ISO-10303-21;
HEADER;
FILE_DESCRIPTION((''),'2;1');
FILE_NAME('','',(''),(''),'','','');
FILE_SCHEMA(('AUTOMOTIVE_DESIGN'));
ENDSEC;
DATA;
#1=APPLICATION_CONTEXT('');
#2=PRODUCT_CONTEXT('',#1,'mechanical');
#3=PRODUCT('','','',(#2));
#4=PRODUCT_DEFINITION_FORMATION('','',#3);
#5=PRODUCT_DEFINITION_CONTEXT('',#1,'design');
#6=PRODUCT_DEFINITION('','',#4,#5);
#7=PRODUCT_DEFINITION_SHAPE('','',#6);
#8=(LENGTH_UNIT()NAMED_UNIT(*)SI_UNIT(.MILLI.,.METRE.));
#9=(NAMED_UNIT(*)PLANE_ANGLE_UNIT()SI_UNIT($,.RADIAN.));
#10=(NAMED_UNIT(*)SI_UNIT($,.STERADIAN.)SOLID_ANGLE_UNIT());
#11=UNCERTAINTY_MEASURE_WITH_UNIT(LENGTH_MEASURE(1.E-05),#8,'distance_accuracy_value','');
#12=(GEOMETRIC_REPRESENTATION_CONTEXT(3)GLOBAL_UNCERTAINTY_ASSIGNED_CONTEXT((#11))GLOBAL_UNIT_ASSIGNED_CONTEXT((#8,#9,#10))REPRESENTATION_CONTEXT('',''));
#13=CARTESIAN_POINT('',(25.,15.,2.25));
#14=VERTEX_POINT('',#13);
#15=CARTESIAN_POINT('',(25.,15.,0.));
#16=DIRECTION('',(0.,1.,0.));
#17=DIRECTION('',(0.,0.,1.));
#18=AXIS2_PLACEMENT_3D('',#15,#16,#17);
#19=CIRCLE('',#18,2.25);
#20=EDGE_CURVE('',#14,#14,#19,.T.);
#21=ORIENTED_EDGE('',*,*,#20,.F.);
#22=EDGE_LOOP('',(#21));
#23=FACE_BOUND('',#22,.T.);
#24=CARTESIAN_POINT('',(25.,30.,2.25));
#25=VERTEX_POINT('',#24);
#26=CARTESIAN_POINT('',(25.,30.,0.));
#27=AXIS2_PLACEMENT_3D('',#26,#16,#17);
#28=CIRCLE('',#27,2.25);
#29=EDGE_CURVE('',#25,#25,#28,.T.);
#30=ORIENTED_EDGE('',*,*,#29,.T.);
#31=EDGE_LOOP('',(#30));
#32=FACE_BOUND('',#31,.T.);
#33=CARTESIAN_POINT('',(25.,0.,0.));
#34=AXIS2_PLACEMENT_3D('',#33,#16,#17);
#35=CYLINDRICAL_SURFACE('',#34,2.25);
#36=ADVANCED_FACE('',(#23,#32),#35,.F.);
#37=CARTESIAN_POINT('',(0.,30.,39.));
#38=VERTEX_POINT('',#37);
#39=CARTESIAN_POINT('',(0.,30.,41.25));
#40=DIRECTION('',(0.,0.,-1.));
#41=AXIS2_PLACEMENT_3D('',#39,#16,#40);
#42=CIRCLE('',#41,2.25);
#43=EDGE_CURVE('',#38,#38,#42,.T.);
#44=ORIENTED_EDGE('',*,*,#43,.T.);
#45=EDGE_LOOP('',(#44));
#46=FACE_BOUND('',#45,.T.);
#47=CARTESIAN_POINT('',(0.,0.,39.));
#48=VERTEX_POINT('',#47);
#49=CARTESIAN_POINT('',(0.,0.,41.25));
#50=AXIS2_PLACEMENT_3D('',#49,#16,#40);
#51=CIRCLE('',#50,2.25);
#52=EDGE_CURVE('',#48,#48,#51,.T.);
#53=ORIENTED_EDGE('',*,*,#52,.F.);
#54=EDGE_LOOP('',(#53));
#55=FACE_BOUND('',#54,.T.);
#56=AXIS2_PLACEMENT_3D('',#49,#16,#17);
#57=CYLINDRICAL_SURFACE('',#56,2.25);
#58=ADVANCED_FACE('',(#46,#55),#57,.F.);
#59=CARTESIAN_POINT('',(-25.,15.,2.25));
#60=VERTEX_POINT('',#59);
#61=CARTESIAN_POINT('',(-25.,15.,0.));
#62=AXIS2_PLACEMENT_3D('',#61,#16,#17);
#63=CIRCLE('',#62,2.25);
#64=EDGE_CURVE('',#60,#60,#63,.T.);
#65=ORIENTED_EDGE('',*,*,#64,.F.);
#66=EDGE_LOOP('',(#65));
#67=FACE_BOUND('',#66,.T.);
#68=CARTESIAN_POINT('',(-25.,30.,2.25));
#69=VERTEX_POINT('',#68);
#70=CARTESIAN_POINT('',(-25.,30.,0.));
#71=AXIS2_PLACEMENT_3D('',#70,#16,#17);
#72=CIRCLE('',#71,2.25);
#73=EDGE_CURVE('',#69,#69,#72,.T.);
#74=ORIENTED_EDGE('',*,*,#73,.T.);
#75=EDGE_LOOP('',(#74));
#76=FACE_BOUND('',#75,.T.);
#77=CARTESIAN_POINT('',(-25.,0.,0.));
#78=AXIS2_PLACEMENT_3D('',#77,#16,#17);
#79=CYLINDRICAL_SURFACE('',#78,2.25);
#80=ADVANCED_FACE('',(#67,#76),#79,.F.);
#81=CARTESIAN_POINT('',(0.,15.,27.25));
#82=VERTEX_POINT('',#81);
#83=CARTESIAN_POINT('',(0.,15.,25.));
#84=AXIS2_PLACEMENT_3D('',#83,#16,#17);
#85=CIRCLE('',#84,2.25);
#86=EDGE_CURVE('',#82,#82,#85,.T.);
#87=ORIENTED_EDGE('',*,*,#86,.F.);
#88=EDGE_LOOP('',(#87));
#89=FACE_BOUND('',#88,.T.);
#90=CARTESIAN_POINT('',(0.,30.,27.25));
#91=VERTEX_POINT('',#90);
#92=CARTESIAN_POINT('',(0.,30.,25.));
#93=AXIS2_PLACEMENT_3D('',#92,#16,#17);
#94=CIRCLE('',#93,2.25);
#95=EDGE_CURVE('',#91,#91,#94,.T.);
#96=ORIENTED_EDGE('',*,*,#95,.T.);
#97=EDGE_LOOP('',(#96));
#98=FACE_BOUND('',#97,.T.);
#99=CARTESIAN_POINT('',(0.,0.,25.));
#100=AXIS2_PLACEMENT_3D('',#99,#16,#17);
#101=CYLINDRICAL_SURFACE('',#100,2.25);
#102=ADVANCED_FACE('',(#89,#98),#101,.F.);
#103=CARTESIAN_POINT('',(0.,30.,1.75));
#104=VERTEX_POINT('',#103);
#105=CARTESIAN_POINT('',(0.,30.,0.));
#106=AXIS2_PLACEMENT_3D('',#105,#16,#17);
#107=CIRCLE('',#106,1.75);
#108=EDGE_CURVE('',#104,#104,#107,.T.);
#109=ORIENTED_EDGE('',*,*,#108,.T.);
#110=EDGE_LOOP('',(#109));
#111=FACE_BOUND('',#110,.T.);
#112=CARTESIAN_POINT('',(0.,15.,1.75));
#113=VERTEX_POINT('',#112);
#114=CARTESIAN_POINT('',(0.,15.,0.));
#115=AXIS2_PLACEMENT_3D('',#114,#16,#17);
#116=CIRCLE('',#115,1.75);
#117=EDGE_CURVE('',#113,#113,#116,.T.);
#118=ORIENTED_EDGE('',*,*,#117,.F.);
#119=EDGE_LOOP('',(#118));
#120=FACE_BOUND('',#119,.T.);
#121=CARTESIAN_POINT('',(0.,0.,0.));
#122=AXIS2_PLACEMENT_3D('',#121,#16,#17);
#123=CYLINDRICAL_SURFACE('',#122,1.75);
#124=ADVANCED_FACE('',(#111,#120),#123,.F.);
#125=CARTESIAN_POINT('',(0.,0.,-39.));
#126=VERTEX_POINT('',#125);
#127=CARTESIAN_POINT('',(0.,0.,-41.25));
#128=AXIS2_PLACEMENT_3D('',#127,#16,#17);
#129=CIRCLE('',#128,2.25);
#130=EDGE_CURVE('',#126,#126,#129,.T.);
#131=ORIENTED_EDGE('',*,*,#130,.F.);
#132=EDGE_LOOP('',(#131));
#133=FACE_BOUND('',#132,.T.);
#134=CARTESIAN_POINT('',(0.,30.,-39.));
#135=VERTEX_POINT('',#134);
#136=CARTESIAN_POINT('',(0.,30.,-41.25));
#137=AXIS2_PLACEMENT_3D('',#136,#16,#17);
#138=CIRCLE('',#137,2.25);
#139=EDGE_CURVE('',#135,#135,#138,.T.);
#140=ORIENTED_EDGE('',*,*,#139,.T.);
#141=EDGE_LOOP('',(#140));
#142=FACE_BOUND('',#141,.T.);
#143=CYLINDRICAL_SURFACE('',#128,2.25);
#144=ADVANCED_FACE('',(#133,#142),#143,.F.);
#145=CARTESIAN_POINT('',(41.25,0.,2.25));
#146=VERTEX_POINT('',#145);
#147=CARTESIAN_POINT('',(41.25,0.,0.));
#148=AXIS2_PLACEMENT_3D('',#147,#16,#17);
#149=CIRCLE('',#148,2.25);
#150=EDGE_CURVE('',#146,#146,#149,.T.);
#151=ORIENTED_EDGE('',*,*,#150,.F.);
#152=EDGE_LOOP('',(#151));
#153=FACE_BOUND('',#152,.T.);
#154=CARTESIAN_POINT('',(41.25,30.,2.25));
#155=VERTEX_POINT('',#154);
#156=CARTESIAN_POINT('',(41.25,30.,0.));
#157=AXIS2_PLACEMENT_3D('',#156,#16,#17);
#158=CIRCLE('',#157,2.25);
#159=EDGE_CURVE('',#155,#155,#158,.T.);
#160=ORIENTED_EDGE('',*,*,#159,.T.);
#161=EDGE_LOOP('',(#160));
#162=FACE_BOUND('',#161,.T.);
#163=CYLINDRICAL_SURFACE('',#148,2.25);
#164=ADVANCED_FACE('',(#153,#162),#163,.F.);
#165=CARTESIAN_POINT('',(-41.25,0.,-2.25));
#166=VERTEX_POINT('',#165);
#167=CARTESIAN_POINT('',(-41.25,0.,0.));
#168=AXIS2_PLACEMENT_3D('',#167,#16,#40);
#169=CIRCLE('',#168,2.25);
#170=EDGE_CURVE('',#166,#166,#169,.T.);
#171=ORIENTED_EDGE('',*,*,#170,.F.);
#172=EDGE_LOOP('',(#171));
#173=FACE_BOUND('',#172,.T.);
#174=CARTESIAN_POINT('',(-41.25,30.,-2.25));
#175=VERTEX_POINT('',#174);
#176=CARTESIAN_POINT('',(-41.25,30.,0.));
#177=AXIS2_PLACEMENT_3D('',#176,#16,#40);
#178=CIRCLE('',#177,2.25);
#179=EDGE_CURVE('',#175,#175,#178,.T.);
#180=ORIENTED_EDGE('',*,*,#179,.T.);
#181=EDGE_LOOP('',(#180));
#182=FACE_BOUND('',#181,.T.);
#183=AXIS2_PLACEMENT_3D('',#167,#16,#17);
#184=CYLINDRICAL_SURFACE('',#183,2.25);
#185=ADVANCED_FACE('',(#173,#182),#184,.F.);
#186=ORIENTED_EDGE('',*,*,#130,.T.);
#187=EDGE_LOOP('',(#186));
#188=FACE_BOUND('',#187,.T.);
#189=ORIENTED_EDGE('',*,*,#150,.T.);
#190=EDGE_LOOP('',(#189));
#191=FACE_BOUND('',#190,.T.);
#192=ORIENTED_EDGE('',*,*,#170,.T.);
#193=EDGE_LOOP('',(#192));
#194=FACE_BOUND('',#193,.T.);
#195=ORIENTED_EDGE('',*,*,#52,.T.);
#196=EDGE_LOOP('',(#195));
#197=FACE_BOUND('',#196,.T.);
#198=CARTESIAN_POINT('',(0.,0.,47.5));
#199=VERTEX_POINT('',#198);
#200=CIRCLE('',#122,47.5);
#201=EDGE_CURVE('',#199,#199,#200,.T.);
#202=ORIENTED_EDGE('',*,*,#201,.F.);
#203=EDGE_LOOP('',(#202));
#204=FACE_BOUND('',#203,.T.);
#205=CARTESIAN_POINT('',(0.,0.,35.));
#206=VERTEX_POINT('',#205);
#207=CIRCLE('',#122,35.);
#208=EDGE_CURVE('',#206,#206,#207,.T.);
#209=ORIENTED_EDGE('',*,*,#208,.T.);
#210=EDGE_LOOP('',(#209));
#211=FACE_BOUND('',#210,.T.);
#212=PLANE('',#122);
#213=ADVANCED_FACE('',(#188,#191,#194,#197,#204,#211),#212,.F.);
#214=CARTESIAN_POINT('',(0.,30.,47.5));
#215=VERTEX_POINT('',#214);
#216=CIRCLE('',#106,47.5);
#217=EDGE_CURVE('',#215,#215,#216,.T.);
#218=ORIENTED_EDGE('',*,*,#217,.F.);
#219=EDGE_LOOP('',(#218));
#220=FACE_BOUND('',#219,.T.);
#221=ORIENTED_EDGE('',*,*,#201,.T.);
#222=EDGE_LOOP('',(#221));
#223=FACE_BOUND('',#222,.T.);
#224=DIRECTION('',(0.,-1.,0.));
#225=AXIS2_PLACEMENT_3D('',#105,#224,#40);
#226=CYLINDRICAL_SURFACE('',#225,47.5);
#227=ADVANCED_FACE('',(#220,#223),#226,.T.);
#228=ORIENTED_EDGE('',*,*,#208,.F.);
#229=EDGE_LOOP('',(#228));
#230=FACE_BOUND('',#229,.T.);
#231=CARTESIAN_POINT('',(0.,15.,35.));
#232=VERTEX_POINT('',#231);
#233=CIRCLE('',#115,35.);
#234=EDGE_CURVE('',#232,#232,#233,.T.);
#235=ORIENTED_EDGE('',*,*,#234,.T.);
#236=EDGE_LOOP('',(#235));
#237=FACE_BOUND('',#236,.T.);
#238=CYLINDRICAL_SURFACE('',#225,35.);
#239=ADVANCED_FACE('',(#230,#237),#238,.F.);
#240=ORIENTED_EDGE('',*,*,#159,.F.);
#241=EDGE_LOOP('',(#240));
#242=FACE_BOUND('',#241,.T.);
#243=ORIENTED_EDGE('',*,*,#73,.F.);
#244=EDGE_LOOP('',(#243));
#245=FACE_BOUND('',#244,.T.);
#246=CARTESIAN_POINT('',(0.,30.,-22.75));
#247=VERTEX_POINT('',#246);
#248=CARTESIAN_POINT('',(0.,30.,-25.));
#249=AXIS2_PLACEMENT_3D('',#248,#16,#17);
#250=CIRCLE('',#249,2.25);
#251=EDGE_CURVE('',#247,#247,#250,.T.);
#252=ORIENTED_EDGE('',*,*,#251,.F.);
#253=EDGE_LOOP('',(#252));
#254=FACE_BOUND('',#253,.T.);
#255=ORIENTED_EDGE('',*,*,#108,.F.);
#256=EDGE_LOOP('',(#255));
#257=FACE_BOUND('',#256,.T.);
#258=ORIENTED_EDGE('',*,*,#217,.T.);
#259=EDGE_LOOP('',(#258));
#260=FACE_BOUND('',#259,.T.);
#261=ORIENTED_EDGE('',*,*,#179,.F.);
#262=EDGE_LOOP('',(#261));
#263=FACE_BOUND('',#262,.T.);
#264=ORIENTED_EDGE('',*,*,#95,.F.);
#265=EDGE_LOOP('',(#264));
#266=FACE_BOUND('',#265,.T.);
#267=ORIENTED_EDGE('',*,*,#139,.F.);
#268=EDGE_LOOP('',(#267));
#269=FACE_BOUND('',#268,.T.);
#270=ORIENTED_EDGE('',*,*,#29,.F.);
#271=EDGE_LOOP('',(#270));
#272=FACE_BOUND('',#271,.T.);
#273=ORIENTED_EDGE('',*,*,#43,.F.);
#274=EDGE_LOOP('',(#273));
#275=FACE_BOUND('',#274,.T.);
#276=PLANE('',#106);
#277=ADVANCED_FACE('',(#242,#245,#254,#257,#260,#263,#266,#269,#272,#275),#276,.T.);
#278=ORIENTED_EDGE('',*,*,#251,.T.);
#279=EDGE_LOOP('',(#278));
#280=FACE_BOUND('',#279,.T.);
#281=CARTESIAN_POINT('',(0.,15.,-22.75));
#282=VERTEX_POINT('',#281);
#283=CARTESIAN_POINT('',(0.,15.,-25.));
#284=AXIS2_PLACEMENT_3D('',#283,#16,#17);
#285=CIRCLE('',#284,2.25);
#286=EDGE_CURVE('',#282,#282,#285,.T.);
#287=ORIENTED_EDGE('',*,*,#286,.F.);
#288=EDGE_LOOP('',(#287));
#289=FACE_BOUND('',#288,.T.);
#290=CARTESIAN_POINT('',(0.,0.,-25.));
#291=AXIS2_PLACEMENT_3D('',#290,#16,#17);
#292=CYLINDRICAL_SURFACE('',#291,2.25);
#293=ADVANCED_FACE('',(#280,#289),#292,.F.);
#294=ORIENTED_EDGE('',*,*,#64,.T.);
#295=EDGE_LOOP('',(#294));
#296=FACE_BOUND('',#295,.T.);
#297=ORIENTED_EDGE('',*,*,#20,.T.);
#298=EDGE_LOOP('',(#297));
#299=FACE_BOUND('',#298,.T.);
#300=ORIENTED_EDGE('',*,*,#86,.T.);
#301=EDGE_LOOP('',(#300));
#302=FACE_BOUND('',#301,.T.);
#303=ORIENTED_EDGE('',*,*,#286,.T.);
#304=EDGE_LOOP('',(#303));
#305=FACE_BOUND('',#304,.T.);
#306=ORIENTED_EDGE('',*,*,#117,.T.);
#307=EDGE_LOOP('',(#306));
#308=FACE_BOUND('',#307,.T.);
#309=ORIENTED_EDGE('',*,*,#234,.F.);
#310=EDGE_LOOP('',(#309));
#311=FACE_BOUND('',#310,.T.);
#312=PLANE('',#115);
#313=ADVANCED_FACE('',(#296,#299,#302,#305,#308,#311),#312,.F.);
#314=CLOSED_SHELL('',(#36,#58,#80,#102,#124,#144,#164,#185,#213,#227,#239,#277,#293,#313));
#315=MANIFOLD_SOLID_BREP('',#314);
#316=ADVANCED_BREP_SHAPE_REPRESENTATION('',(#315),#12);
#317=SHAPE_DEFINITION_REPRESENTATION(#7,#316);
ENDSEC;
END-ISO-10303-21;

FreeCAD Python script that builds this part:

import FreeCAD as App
import Part
import Sketcher
from FreeCAD import Vector

doc = App.newDocument("Part")
body = doc.addObject("PartDesign::Body", "Body")

# Sketch on XZ plane
sketch1 = doc.addObject("Sketcher::SketchObject", "Sketch")
body.addObject(sketch1)
sketch1.AttachmentSupport = (doc.XZ_Plane, [""])
sketch1.MapMode = "FlatFace"
sketch1.addGeometry(Part.Circle(Vector(0, 0, 0), Vector(0, 0, 1), 48), False)
sketch1.addGeometry(Part.Circle(Vector(0, 0, 0), Vector(0, 0, 1), 35), False)
sketch1.addConstraint(Sketcher.Constraint("Coincident", 0, 3, -1, 1))
sketch1.addConstraint(Sketcher.Constraint("Coincident", 1, 3, -1, 1))
sketch1.addConstraint(Sketcher.Constraint("Diameter", 0, 95.0))
sketch1.addConstraint(Sketcher.Constraint("Diameter", 1, 70.0))
pad1 = doc.addObject("PartDesign::Pad", "Pad")
body.addObject(pad1)
pad1.Profile = sketch1
pad1.Length = 30
pad1.Reversed = True

# Sketch on XZ plane
sketch2 = doc.addObject("Sketcher::SketchObject", "Sketch001")
body.addObject(sketch2)
sketch2.AttachmentSupport = (doc.XZ_Plane, [""])
sketch2.MapMode = "FlatFace"
sketch2.AttachmentOffset = App.Placement(Vector(0, 0, -30), App.Rotation())
sketch2.addGeometry(Part.Circle(Vector(0, -41.2, 0), Vector(0, 0, 1), 2.2), False)
sketch2.addGeometry(Part.Circle(Vector(41.2, 0, 0), Vector(0, 0, 1), 2.2), False)
sketch2.addGeometry(Part.Circle(Vector(0, 41.2, 0), Vector(0, 0, 1), 2.2), False)
sketch2.addGeometry(Part.Circle(Vector(-41.2, 0, 0), Vector(0, 0, 1), 2.2), False)
sketch2.addGeometry(Part.Circle(Vector(0, -25, 0), Vector(0, 0, 1), 2.2), False)
sketch2.addGeometry(Part.Circle(Vector(25, 0, 0), Vector(0, 0, 1), 2.2), False)
sketch2.addGeometry(Part.Circle(Vector(0, 25, 0), Vector(0, 0, 1), 2.2), False)
sketch2.addGeometry(Part.Circle(Vector(-25, 0, 0), Vector(0, 0, 1), 2.2), False)
sketch2.addConstraint(Sketcher.Constraint("Equal", 0, 1))
sketch2.addConstraint(Sketcher.Constraint("Equal", 1, 2))
sketch2.addConstraint(Sketcher.Constraint("Equal", 2, 3))
sketch2.addConstraint(Sketcher.Constraint("Equal", 3, 4))
sketch2.addConstraint(Sketcher.Constraint("Equal", 4, 5))
sketch2.addConstraint(Sketcher.Constraint("Equal", 5, 6))
sketch2.addConstraint(Sketcher.Constraint("Equal", 6, 7))
sketch2.addConstraint(Sketcher.Constraint("Symmetric", 0, 3, 2, 3, -1, 1))
sketch2.addConstraint(Sketcher.Constraint("Symmetric", 1, 3, 3, 3, -1, 1))
sketch2.addConstraint(Sketcher.Constraint("Symmetric", 4, 3, 6, 3, -1, 1))
sketch2.addConstraint(Sketcher.Constraint("Symmetric", 5, 3, 7, 3, -1, 1))
sketch2.addConstraint(Sketcher.Constraint("PointOnObject", 0, 3, -2))
sketch2.addConstraint(Sketcher.Constraint("PointOnObject", 1, 3, -1))
sketch2.addConstraint(Sketcher.Constraint("PointOnObject", 4, 3, -2))
sketch2.addConstraint(Sketcher.Constraint("PointOnObject", 5, 3, -1))
sketch2.addConstraint(Sketcher.Constraint("Diameter", 0, 4.5))
sketch2.addConstraint(Sketcher.Constraint("DistanceY", 4, 3, -1, 1, 25.0))
sketch2.addConstraint(Sketcher.Constraint("DistanceX", -1, 1, 5, 3, 25.0))
sketch2.addConstraint(Sketcher.Constraint("DistanceY", 0, 3, 2, 3, 82.5))
sketch2.addConstraint(Sketcher.Constraint("DistanceX", 3, 3, 1, 3, 82.5))
pocket1 = doc.addObject("PartDesign::Pocket", "Pocket")
body.addObject(pocket1)
pocket1.Profile = sketch2
pocket1.Type = "ThroughAll"
pocket1.Reversed = True

# Sketch on XZ plane
sketch3 = doc.addObject("Sketcher::SketchObject", "Sketch002")
body.addObject(sketch3)
sketch3.AttachmentSupport = (doc.XZ_Plane, [""])
sketch3.MapMode = "FlatFace"
sketch3.AttachmentOffset = App.Placement(Vector(0, 0, -15), App.Rotation())
sketch3.addGeometry(Part.Circle(Vector(0, 0, 0), Vector(0, 0, 1), 35), False)
sketch3.addConstraint(Sketcher.Constraint("Coincident", 0, 3, -1, 1))
sketch3.addConstraint(Sketcher.Constraint("Diameter", 0, 70.0))
pad2 = doc.addObject("PartDesign::Pad", "Pad001")
body.addObject(pad2)
pad2.Profile = sketch3
pad2.Length = 15
pad2.Reversed = True

# Sketch on XZ plane
sketch4 = doc.addObject("Sketcher::SketchObject", "Sketch003")
body.addObject(sketch4)
sketch4.AttachmentSupport = (doc.XZ_Plane, [""])
sketch4.MapMode = "FlatFace"
sketch4.AttachmentOffset = App.Placement(Vector(0, 0, -30), App.Rotation())
sketch4.addGeometry(Part.Circle(Vector(0, 0, 0), Vector(0, 0, 1), 1.8), False)
sketch4.addConstraint(Sketcher.Constraint("Coincident", 0, 3, -1, 1))
sketch4.addConstraint(Sketcher.Constraint("Diameter", 0, 3.5))
pocket2 = doc.addObject("PartDesign::Pocket", "Pocket001")
body.addObject(pocket2)
pocket2.Profile = sketch4
pocket2.Length = 30
pocket2.Reversed = True

# Sketch on XZ plane
sketch5 = doc.addObject("Sketcher::SketchObject", "Sketch004")
body.addObject(sketch5)
sketch5.AttachmentSupport = (doc.XZ_Plane, [""])
sketch5.MapMode = "FlatFace"
sketch5.AttachmentOffset = App.Placement(Vector(0, 0, -30), App.Rotation())
sketch5.addGeometry(Part.Circle(Vector(0, -41.2, 0), Vector(0, 0, 1), 2.2), False)
sketch5.addGeometry(Part.Circle(Vector(41.2, 0, 0), Vector(0, 0, 1), 2.2), False)
sketch5.addGeometry(Part.Circle(Vector(0, 41.2, 0), Vector(0, 0, 1), 2.2), False)
sketch5.addGeometry(Part.Circle(Vector(-41.2, 0, 0), Vector(0, 0, 1), 2.2), False)
sketch5.addGeometry(Part.Circle(Vector(0, -25, 0), Vector(0, 0, 1), 2.2), False)
sketch5.addGeometry(Part.Circle(Vector(25, 0, 0), Vector(0, 0, 1), 2.2), False)
sketch5.addGeometry(Part.Circle(Vector(0, 25, 0), Vector(0, 0, 1), 2.2), False)
sketch5.addGeometry(Part.Circle(Vector(-25, 0, 0), Vector(0, 0, 1), 2.2), False)
sketch5.addConstraint(Sketcher.Constraint("Equal", 0, 1))
sketch5.addConstraint(Sketcher.Constraint("Equal", 1, 2))
sketch5.addConstraint(Sketcher.Constraint("Equal", 2, 3))
sketch5.addConstraint(Sketcher.Constraint("Equal", 3, 4))
sketch5.addConstraint(Sketcher.Constraint("Equal", 4, 5))
sketch5.addConstraint(Sketcher.Constraint("Equal", 5, 6))
sketch5.addConstraint(Sketcher.Constraint("Equal", 6, 7))
sketch5.addConstraint(Sketcher.Constraint("Symmetric", 0, 3, 2, 3, -1, 1))
sketch5.addConstraint(Sketcher.Constraint("Symmetric", 1, 3, 3, 3, -1, 1))
sketch5.addConstraint(Sketcher.Constraint("Symmetric", 4, 3, 6, 3, -1, 1))
sketch5.addConstraint(Sketcher.Constraint("Symmetric", 5, 3, 7, 3, -1, 1))
sketch5.addConstraint(Sketcher.Constraint("PointOnObject", 0, 3, -2))
sketch5.addConstraint(Sketcher.Constraint("PointOnObject", 1, 3, -1))
sketch5.addConstraint(Sketcher.Constraint("PointOnObject", 4, 3, -2))
sketch5.addConstraint(Sketcher.Constraint("PointOnObject", 5, 3, -1))
sketch5.addConstraint(Sketcher.Constraint("Diameter", 0, 4.5))
sketch5.addConstraint(Sketcher.Constraint("DistanceY", 4, 3, -1, 1, 25.0))
sketch5.addConstraint(Sketcher.Constraint("DistanceX", -1, 1, 5, 3, 25.0))
sketch5.addConstraint(Sketcher.Constraint("DistanceY", 0, 3, 2, 3, 82.5))
sketch5.addConstraint(Sketcher.Constraint("DistanceX", 3, 3, 1, 3, 82.5))
pocket3 = doc.addObject("PartDesign::Pocket", "Pocket002")
body.addObject(pocket3)
pocket3.Profile = sketch5
pocket3.Type = "ThroughAll"
pocket3.Reversed = True

doc.recompute()
